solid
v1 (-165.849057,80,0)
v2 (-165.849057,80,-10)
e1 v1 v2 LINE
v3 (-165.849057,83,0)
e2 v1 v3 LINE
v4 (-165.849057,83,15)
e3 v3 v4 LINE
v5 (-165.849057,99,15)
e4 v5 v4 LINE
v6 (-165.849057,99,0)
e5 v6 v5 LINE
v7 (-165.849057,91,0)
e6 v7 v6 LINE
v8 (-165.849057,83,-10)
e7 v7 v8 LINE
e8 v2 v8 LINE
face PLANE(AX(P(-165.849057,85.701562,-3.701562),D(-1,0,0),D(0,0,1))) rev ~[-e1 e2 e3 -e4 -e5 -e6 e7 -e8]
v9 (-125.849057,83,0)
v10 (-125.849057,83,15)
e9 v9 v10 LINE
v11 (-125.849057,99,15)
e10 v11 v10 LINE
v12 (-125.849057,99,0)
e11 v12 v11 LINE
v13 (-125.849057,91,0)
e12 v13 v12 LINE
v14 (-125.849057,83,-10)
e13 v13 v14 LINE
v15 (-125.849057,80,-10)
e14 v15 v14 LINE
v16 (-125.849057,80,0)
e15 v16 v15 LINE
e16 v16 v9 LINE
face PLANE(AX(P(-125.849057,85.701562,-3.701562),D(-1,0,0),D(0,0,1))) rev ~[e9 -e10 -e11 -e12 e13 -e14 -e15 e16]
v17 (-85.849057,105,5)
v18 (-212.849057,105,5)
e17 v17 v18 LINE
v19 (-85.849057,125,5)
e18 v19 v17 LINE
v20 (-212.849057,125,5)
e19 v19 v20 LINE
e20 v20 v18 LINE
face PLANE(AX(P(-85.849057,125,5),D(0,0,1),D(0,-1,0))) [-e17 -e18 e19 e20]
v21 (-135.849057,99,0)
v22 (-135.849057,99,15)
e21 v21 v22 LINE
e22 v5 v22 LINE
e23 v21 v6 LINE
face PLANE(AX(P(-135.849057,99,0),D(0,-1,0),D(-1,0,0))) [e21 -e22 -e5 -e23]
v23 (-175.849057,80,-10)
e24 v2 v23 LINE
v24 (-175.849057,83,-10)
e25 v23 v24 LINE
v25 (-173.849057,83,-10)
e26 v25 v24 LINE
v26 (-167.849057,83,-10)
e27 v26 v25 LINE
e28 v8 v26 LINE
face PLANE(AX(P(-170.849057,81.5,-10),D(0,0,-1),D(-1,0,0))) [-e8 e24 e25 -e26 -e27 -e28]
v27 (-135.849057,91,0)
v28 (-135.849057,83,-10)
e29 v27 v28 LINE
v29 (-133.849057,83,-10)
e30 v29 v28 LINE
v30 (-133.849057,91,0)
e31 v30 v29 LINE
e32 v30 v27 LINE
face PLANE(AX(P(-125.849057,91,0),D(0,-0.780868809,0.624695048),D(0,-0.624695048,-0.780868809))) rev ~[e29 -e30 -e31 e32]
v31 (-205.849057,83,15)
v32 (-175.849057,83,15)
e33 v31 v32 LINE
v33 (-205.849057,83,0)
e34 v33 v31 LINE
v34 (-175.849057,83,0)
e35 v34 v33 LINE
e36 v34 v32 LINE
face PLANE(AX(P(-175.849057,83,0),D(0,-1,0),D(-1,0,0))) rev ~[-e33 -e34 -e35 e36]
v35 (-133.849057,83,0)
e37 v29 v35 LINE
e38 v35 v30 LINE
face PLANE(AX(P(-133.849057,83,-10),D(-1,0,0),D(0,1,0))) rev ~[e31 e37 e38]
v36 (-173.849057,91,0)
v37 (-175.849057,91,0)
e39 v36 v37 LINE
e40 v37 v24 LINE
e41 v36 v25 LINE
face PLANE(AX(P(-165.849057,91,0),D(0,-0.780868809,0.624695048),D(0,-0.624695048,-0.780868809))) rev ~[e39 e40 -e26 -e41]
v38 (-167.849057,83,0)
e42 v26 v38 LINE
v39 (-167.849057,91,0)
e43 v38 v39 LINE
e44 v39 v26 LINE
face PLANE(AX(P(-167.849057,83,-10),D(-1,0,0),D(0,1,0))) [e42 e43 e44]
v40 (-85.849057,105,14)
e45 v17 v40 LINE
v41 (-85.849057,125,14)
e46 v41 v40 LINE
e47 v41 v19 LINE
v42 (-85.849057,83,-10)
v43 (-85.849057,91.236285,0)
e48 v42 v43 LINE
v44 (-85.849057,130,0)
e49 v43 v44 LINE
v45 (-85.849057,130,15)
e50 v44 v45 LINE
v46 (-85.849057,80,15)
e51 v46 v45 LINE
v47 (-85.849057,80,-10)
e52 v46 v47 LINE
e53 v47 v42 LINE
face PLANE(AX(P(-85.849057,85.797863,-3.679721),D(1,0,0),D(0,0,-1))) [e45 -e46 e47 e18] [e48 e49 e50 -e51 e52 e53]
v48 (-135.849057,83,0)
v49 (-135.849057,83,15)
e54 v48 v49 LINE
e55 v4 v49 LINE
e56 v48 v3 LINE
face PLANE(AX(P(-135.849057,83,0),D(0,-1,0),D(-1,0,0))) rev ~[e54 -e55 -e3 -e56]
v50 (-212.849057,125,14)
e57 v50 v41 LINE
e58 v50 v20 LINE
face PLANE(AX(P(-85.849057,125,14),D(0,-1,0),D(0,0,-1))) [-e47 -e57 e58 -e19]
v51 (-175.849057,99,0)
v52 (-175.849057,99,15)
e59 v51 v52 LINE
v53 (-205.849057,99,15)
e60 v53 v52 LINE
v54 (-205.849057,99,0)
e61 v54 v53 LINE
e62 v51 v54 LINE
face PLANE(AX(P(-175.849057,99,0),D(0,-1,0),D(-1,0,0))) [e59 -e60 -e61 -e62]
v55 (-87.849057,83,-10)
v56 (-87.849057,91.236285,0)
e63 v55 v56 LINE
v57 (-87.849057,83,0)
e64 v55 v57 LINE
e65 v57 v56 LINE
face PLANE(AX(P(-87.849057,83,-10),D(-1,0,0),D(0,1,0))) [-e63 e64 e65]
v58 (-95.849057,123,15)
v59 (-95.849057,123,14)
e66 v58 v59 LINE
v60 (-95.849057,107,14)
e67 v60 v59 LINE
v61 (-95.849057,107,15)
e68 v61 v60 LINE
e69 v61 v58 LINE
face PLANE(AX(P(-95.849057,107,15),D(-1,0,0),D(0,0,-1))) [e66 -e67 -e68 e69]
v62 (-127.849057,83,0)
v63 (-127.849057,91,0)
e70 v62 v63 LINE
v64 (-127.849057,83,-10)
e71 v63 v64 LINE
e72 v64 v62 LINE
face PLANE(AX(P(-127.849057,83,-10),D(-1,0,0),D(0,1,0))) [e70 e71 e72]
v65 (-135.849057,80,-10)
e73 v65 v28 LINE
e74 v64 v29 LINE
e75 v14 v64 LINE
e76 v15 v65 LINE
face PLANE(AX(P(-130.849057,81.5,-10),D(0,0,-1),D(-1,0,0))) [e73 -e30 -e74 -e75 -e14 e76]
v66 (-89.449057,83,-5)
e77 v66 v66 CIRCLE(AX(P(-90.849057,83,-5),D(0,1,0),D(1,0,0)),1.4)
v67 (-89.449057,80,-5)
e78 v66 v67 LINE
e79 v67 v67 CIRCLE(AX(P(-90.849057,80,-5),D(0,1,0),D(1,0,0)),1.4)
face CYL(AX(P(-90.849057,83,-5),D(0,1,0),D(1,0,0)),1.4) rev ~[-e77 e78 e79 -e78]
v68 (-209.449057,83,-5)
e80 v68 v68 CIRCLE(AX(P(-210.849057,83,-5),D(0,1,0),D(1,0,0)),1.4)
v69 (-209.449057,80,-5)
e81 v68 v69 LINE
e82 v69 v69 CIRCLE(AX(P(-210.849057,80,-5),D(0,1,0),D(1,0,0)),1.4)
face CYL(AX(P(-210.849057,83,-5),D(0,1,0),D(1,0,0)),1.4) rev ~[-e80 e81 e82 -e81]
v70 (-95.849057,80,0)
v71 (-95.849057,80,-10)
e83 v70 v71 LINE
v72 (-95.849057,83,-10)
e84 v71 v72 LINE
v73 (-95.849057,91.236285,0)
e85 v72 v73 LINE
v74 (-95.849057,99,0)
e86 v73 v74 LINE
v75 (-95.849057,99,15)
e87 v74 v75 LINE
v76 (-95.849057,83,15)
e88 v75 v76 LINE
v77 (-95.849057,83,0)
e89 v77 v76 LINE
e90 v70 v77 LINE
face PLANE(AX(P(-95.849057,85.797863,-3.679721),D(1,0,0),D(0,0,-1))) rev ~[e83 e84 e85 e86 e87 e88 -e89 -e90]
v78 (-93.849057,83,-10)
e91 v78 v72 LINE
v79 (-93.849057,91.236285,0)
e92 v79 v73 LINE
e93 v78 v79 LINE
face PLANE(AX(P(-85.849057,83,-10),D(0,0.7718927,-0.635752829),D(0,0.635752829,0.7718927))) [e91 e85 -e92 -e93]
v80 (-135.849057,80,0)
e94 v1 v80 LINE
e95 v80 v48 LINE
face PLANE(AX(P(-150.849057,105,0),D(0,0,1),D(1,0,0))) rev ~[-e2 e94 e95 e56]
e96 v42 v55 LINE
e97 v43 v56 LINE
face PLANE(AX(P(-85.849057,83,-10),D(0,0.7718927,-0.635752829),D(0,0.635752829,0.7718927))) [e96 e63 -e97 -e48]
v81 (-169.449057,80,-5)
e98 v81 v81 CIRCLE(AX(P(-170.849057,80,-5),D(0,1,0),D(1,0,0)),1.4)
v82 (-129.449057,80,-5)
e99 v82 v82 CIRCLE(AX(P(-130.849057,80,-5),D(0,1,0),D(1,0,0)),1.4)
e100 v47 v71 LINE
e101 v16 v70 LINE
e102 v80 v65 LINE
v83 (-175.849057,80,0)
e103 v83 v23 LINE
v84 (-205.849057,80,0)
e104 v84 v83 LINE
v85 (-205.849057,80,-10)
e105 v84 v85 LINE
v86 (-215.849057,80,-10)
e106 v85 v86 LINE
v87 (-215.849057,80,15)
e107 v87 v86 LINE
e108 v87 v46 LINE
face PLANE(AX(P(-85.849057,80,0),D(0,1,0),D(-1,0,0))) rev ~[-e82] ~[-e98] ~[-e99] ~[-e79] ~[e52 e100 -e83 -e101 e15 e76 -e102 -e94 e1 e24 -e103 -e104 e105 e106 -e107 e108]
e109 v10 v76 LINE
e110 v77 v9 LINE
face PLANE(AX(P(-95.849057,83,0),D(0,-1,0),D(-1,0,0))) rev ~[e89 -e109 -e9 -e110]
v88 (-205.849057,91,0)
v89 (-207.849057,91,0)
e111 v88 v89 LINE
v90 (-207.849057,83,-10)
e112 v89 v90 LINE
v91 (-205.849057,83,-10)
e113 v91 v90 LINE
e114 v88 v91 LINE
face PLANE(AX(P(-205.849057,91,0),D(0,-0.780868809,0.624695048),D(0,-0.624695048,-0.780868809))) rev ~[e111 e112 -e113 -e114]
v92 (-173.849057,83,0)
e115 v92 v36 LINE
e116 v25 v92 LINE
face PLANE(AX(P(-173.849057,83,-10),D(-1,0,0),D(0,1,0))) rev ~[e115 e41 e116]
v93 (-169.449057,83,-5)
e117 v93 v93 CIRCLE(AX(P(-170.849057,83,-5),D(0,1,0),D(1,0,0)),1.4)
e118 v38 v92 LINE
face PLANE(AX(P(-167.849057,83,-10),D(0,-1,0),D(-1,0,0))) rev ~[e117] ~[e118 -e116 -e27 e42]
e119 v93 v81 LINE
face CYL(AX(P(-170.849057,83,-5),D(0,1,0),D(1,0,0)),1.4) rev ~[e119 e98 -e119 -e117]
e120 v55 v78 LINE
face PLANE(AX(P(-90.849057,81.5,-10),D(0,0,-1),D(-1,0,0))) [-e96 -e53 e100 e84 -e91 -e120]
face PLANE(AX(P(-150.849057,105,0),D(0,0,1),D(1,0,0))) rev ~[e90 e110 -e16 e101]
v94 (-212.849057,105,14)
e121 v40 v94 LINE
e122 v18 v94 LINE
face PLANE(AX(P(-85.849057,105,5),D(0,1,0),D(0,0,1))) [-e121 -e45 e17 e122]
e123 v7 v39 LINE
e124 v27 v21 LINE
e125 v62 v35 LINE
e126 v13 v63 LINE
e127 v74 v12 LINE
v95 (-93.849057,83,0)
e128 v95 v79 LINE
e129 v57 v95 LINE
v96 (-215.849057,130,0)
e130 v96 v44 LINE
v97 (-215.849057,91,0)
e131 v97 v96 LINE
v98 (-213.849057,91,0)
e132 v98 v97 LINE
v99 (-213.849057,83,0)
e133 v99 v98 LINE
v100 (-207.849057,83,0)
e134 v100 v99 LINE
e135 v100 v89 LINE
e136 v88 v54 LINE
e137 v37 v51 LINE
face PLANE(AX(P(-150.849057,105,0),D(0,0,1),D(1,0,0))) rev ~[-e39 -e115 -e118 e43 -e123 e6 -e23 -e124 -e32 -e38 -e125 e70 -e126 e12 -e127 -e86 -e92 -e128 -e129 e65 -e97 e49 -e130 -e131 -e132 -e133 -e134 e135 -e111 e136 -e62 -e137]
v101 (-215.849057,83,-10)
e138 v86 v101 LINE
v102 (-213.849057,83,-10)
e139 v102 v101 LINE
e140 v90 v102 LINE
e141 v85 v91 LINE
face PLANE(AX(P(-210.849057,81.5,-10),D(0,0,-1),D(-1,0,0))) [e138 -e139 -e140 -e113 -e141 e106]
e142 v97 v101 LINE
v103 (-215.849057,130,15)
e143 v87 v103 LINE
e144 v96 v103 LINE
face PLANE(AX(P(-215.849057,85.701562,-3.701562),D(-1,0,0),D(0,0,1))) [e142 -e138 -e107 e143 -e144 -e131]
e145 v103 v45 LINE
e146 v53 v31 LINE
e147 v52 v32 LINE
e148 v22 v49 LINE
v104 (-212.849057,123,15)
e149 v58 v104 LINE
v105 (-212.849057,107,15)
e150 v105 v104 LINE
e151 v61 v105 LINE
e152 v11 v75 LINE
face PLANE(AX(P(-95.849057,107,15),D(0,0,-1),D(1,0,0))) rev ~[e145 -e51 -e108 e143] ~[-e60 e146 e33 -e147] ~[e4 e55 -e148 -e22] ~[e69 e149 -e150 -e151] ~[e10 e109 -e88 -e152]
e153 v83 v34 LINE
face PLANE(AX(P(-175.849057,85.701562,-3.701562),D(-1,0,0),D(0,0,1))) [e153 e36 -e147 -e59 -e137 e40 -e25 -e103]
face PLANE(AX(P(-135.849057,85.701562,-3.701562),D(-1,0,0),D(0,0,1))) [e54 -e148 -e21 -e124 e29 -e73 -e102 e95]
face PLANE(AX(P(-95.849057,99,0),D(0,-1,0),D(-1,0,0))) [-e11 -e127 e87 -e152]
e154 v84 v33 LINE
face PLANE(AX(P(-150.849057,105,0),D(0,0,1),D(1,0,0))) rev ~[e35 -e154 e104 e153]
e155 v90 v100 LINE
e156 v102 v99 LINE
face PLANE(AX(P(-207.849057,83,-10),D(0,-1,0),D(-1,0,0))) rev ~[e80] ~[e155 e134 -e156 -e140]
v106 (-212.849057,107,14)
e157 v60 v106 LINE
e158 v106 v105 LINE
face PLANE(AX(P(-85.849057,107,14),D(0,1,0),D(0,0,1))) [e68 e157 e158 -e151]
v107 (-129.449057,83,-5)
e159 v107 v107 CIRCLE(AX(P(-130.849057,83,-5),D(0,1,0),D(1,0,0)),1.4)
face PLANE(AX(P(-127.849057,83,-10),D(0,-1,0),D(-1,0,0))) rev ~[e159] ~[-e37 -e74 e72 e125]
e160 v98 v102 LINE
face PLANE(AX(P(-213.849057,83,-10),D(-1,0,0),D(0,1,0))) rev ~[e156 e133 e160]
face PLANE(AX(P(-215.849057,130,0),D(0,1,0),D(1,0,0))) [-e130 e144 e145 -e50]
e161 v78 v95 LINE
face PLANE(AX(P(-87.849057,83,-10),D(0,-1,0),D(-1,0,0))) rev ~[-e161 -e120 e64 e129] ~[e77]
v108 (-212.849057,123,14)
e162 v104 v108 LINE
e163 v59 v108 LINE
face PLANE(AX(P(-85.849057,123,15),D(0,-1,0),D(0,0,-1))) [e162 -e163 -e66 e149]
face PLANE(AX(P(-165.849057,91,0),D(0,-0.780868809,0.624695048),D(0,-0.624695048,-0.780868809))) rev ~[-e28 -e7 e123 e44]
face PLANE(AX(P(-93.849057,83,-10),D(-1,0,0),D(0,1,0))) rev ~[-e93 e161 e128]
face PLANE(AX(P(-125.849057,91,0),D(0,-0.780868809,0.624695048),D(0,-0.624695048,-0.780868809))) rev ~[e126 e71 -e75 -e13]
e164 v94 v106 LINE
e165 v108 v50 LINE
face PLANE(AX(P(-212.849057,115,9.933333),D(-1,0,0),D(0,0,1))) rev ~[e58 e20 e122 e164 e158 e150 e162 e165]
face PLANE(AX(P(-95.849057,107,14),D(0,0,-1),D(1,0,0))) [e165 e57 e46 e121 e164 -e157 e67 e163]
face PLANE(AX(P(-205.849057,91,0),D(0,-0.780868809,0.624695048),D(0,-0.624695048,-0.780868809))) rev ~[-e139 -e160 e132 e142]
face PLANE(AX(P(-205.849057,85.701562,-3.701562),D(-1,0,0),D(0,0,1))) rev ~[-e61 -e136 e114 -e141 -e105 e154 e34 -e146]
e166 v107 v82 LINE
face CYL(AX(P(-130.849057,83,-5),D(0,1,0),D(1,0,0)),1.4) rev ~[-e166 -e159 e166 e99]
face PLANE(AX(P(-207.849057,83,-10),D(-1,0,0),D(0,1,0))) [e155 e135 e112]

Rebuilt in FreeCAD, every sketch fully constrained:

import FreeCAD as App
import Part
import Sketcher

V = App.Vector


def add_polygon(sketch, points):
    """Adds a closed chain of lines whose ends are joined by coincident constraints."""
    first, n = sketch.GeometryCount, len(points)
    for a, b in zip(points, points[1:] + points[:1]):
        sketch.addGeometry(Part.LineSegment(App.Vector(*a, 0), App.Vector(*b, 0)), False)
    for i in range(n):
        sketch.addConstraint(Sketcher.Constraint("Coincident", first + i, 2, first + (i + 1) % n, 1))

doc = App.newDocument("Part")
body = doc.addObject("PartDesign::Body", "Body")

sketch1 = body.newObject("Sketcher::SketchObject", "Sketch")
sketch1.AttachmentSupport = (doc.getObject("XY_Plane"), [""])
sketch1.MapMode = "FlatFace"
add_polygon(sketch1, [(-215.849057, 130), (-215.849057, 80), (-85.849057, 80), (-85.849057, 130)])
sketch1.addConstraint([
    Sketcher.Constraint("Vertical", 0),
    Sketcher.Constraint("Horizontal", 1),
    Sketcher.Constraint("Vertical", 2),
    Sketcher.Constraint("Horizontal", 3),
    Sketcher.Constraint("DistanceX", 1, 1, 1, 2, 130.0),
    Sketcher.Constraint("DistanceY", 0, 2, 0, 1, 50.0),
    Sketcher.Constraint("DistanceY", -1, 1, 0, 2, 80.0),
    Sketcher.Constraint("DistanceX", 0, 2, -1, 1, 215.849057),
])
pad1 = body.newObject("PartDesign::Pad", "Pad")
pad1.Profile = sketch1
pad1.Length = 15

sketch2 = body.newObject("Sketcher::SketchObject", "Sketch001")
sketch2.AttachmentSupport = (doc.getObject("YZ_Plane"), [""])
sketch2.MapMode = "FlatFace"
sketch2.AttachmentOffset = App.Placement(V(0, 0, -85.849057), App.Rotation())
add_polygon(sketch2, [(125, 5), (125, 14), (123, 14), (123, 15), (107, 15), (107, 14), (105, 14), (105, 5)])
sketch2.addConstraint([
    Sketcher.Constraint("Vertical", 0),
    Sketcher.Constraint("Horizontal", 1),
    Sketcher.Constraint("Vertical", 2),
    Sketcher.Constraint("Horizontal", 3),
    Sketcher.Constraint("Vertical", 4),
    Sketcher.Constraint("Horizontal", 5),
    Sketcher.Constraint("Vertical", 6),
    Sketcher.Constraint("Horizontal", 7),
    Sketcher.Constraint("Horizontal", 1, 2, 4, 2),
    Sketcher.Constraint("Equal", 1, 5),
    Sketcher.Constraint("DistanceX", 1, 2, 1, 1, 2.0),
    Sketcher.Constraint("DistanceX", 3, 2, 3, 1, 16.0),
    Sketcher.Constraint("DistanceY", 0, 1, 0, 2, 9.0),
    Sketcher.Constraint("DistanceY", 2, 1, 2, 2, 1.0),
    Sketcher.Constraint("DistanceX", -1, 1, 0, 2, 125.0),
    Sketcher.Constraint("DistanceY", -1, 1, 0, 2, 14.0),
])
pocket1 = body.newObject("PartDesign::Pocket", "Pocket")
pocket1.Profile = sketch2
pocket1.Type = "TwoLengths"
pocket1.Length = 1
pocket1.Length2 = 127
pocket1.Reversed = True

sketch3 = body.newObject("Sketcher::SketchObject", "Sketch002")
sketch3.AttachmentSupport = (doc.getObject("XY_Plane"), [""])
sketch3.MapMode = "FlatFace"
add_polygon(sketch3, [(-100.849057, 83), (-100.849057, 80), (-110.849057, 80), (-110.849057, 83)])
add_polygon(sketch3, [(-190.849057, 83), (-190.849057, 80), (-200.849057, 80), (-200.849057, 83)])
sketch3.addConstraint([
    Sketcher.Constraint("Vertical", 0),
    Sketcher.Constraint("Horizontal", 1),
    Sketcher.Constraint("Vertical", 2),
    Sketcher.Constraint("Horizontal", 3),
    Sketcher.Constraint("Vertical", 4),
    Sketcher.Constraint("Horizontal", 5),
    Sketcher.Constraint("Vertical", 6),
    Sketcher.Constraint("Horizontal", 7),
    Sketcher.Constraint("Horizontal", 1, 2, 4, 2),
    Sketcher.Constraint("Horizontal", 3, 2, 6, 2),
    Sketcher.Constraint("Equal", 3, 5),
    Sketcher.Constraint("DistanceX", 1, 2, 1, 1, 10.0),
    Sketcher.Constraint("DistanceY", 0, 2, 0, 1, 3.0),
    Sketcher.Constraint("DistanceY", -1, 1, 0, 2, 80.0),
    Sketcher.Constraint("DistanceX", 4, 2, 1, 2, 80.0),
    Sketcher.Constraint("DistanceX", 0, 2, -1, 1, 100.849057),
])
pad2 = body.newObject("PartDesign::Pad", "Pad001")
pad2.Profile = sketch3
pad2.Length = 10
pad2.Reversed = True

sketch4 = body.newObject("Sketcher::SketchObject", "Sketch003")
sketch4.AttachmentSupport = (doc.getObject("XY_Plane"), [""])
sketch4.MapMode = "FlatFace"
add_polygon(sketch4, [(-175.849057, 99), (-175.849057, 83), (-205.849057, 83), (-205.849057, 99)])
add_polygon(sketch4, [(-135.849057, 99), (-135.849057, 83), (-165.849057, 83), (-165.849057, 99)])
add_polygon(sketch4, [(-95.849057, 99), (-95.849057, 83), (-125.849057, 83), (-125.849057, 99)])
sketch4.addConstraint([
    Sketcher.Constraint("Vertical", 0),
    Sketcher.Constraint("Horizontal", 1),
    Sketcher.Constraint("Vertical", 2),
    Sketcher.Constraint("Horizontal", 3),
    Sketcher.Constraint("Vertical", 4),
    Sketcher.Constraint("Horizontal", 5),
    Sketcher.Constraint("Vertical", 6),
    Sketcher.Constraint("Horizontal", 7),
    Sketcher.Constraint("Vertical", 8),
    Sketcher.Constraint("Horizontal", 9),
    Sketcher.Constraint("Vertical", 10),
    Sketcher.Constraint("Horizontal", 11),
    Sketcher.Constraint("Horizontal", 1, 2, 4, 2),
    Sketcher.Constraint("Horizontal", 3, 2, 6, 2),
    Sketcher.Constraint("Horizontal", 5, 2, 8, 2),
    Sketcher.Constraint("Horizontal", 7, 2, 10, 2),
    Sketcher.Constraint("Equal", 3, 5),
    Sketcher.Constraint("Equal", 7, 9),
    Sketcher.Constraint("DistanceX", 1, 2, 1, 1, 30.0),
    Sketcher.Constraint("DistanceY", 0, 2, 0, 1, 16.0),
    Sketcher.Constraint("DistanceY", -1, 1, 0, 2, 83.0),
    Sketcher.Constraint("DistanceX", 0, 2, 4, 2, 40.0),
    Sketcher.Constraint("DistanceX", 4, 2, 8, 2, 40.0),
    Sketcher.Constraint("DistanceX", 0, 2, -1, 1, 175.849057),
])
pocket2 = body.newObject("PartDesign::Pocket", "Pocket001")
pocket2.Profile = sketch4
pocket2.Type = "ThroughAll"
pocket2.Reversed = True

sketch5 = body.newObject("Sketcher::SketchObject", "Sketch004")
sketch5.AttachmentSupport = (doc.getObject("XZ_Plane"), [""])
sketch5.MapMode = "FlatFace"
sketch5.AttachmentOffset = App.Placement(V(0, 0, -83), App.Rotation())
sketch5.addGeometry(Part.Circle(V(-105.849057, -5, 0), V(0, 0, 1), 1.375), False)
sketch5.addConstraint([
    Sketcher.Constraint("Diameter", 0, 2.75),
    Sketcher.Constraint("DistanceY", 0, 3, -1, 1, 5.0),
    Sketcher.Constraint("DistanceX", 0, 3, -1, 1, 105.849057),
])
pocket3 = body.newObject("PartDesign::Pocket", "Pocket002")
pocket3.Profile = sketch5
pocket3.Type = "ThroughAll"
pocket3.Reversed = True
doc.recompute()

datumplane = body.newObject("PartDesign::Plane", "DatumPlane")
datumplane.AttachmentSupport = (doc.getObject("YZ_Plane"), [""])
datumplane.MapMode = "FlatFace"
datumplane.AttachmentOffset = App.Placement(V(0, 0, -151), App.Rotation())
mirrored = body.newObject("PartDesign::Mirrored", "Mirrored")
mirrored.Originals = [pocket3]
mirrored.MirrorPlane = (datumplane, [""])
body.Tip = mirrored

sketch6 = body.newObject("Sketcher::SketchObject", "Sketch005")
sketch6.AttachmentSupport = (doc.getObject("XY_Plane"), [""])
sketch6.MapMode = "FlatFace"
add_polygon(sketch6, [(-145.849057, 83), (-145.849057, 80), (-155.849057, 80), (-155.849057, 83)])
sketch6.addConstraint([
    Sketcher.Constraint("Vertical", 0),
    Sketcher.Constraint("Horizontal", 1),
    Sketcher.Constraint("Vertical", 2),
    Sketcher.Constraint("Horizontal", 3),
    Sketcher.Constraint("DistanceX", 1, 2, 1, 1, 10.0),
    Sketcher.Constraint("DistanceY", 0, 2, 0, 1, 3.0),
    Sketcher.Constraint("DistanceY", -1, 1, 0, 2, 80.0),
    Sketcher.Constraint("DistanceX", 0, 2, -1, 1, 145.849057),
])
pad3 = body.newObject("PartDesign::Pad", "Pad002")
pad3.Profile = sketch6
pad3.Length = 10
pad3.Reversed = True

sketch7 = body.newObject("Sketcher::SketchObject", "Sketch006")
sketch7.AttachmentSupport = (doc.getObject("XZ_Plane"), [""])
sketch7.MapMode = "FlatFace"
sketch7.AttachmentOffset = App.Placement(V(0, 0, -83), App.Rotation())
sketch7.addGeometry(Part.Circle(V(-150.849057, -5, 0), V(0, 0, 1), 1.375), False)
sketch7.addConstraint([
    Sketcher.Constraint("Diameter", 0, 2.75),
    Sketcher.Constraint("DistanceY", 0, 3, -1, 1, 5.0),
    Sketcher.Constraint("DistanceX", 0, 3, -1, 1, 150.849057),
])
pocket4 = body.newObject("PartDesign::Pocket", "Pocket003")
pocket4.Profile = sketch7
pocket4.Length = 10
pocket4.Reversed = True

sketch8 = body.newObject("Sketcher::SketchObject", "Sketch007")
sketch8.AttachmentSupport = (doc.getObject("XZ_Plane"), [""])
sketch8.MapMode = "FlatFace"
sketch8.AttachmentOffset = App.Placement(V(0, 0, -107), App.Rotation())
add_polygon(sketch8, [(-95.849057, 14), (-95.849057, 15), (-85.849057, 15), (-85.849057, 14)])
sketch8.addConstraint([
    Sketcher.Constraint("Vertical", 0),
    Sketcher.Constraint("Horizontal", 1),
    Sketcher.Constraint("Vertical", 2),
    Sketcher.Constraint("Horizontal", 3),
    Sketcher.Constraint("DistanceX", 1, 1, 1, 2, 10.0),
    Sketcher.Constraint("DistanceY", 0, 1, 0, 2, 1.0),
    Sketcher.Constraint("DistanceY", -1, 1, 0, 2, 15.0),
    Sketcher.Constraint("DistanceX", 0, 2, -1, 1, 95.849057),
])
pad4 = body.newObject("PartDesign::Pad", "Pad003")
pad4.Profile = sketch8
pad4.Length = 20
pad4.Reversed = True

sketch9 = body.newObject("Sketcher::SketchObject", "Sketch008")
sketch9.AttachmentSupport = (doc.getObject("XY_Plane"), [""])
sketch9.MapMode = "FlatFace"
sketch9.AttachmentOffset = App.Placement(V(0, 0, -10), App.Rotation())
add_polygon(sketch9, [(-100.849057, 83), (-100.849057, 80), (-110.849057, 80), (-110.849057, 83)])
sketch9.addConstraint([
    Sketcher.Constraint("Vertical", 0),
    Sketcher.Constraint("Horizontal", 1),
    Sketcher.Constraint("Vertical", 2),
    Sketcher.Constraint("Horizontal", 3),
    Sketcher.Constraint("DistanceX", 1, 2, 1, 1, 10.0),
    Sketcher.Constraint("DistanceY", 0, 2, 0, 1, 3.0),
    Sketcher.Constraint("DistanceY", -1, 1, 0, 2, 80.0),
    Sketcher.Constraint("DistanceX", 0, 2, -1, 1, 100.849057),
])
pocket5 = body.newObject("PartDesign::Pocket", "Pocket004")
pocket5.Profile = sketch9
pocket5.Length = 10
pocket5.Reversed = True

sketch10 = body.newObject("Sketcher::SketchObject", "Sketch009")
sketch10.AttachmentSupport = (doc.getObject("XY_Plane"), [""])
sketch10.MapMode = "FlatFace"
sketch10.AttachmentOffset = App.Placement(V(0, 0, -10), App.Rotation())
add_polygon(sketch10, [(-145.849057, 83), (-145.849057, 80), (-155.849057, 80), (-155.849057, 83)])
sketch10.addConstraint([
    Sketcher.Constraint("Vertical", 0),
    Sketcher.Constraint("Horizontal", 1),
    Sketcher.Constraint("Vertical", 2),
    Sketcher.Constraint("Horizontal", 3),
    Sketcher.Constraint("DistanceX", 1, 2, 1, 1, 10.0),
    Sketcher.Constraint("DistanceY", 0, 2, 0, 1, 3.0),
    Sketcher.Constraint("DistanceY", -1, 1, 0, 2, 80.0),
    Sketcher.Constraint("DistanceX", 0, 2, -1, 1, 145.849057),
])
pocket6 = body.newObject("PartDesign::Pocket", "Pocket005")
pocket6.Profile = sketch10
pocket6.Length = 10
pocket6.Reversed = True

sketch11 = body.newObject("Sketcher::SketchObject", "Sketch010")
sketch11.AttachmentSupport = (doc.getObject("XY_Plane"), [""])
sketch11.MapMode = "FlatFace"
sketch11.AttachmentOffset = App.Placement(V(0, 0, -10), App.Rotation())
add_polygon(sketch11, [(-190.849057, 83), (-190.849057, 80), (-200.849057, 80), (-200.849057, 83)])
sketch11.addConstraint([
    Sketcher.Constraint("Vertical", 0),
    Sketcher.Constraint("Horizontal", 1),
    Sketcher.Constraint("Vertical", 2),
    Sketcher.Constraint("Horizontal", 3),
    Sketcher.Constraint("DistanceX", 1, 2, 1, 1, 10.0),
    Sketcher.Constraint("DistanceY", 0, 2, 0, 1, 3.0),
    Sketcher.Constraint("DistanceY", -1, 1, 0, 2, 80.0),
    Sketcher.Constraint("DistanceX", 0, 2, -1, 1, 190.849057),
])
pocket7 = body.newObject("PartDesign::Pocket", "Pocket006")
pocket7.Profile = sketch11
pocket7.Length = 10
pocket7.Reversed = True

sketch12 = body.newObject("Sketcher::SketchObject", "Sketch011")
sketch12.AttachmentSupport = (doc.getObject("XY_Plane"), [""])
sketch12.MapMode = "FlatFace"
add_polygon(sketch12, [(-85.849057, 83), (-85.849057, 80), (-95.849057, 80), (-95.849057, 83)])
add_polygon(sketch12, [(-125.849057, 83), (-125.849057, 80), (-135.849057, 80), (-135.849057, 83)])
add_polygon(sketch12, [(-165.849057, 83), (-165.849057, 80), (-175.849057, 80), (-175.849057, 83)])
add_polygon(sketch12, [(-205.849057, 83), (-205.849057, 80), (-215.849057, 80), (-215.849057, 83)])
sketch12.addConstraint([
    Sketcher.Constraint("Vertical", 0),
    Sketcher.Constraint("Horizontal", 1),
    Sketcher.Constraint("Vertical", 2),
    Sketcher.Constraint("Horizontal", 3),
    Sketcher.Constraint("Vertical", 4),
    Sketcher.Constraint("Horizontal", 5),
    Sketcher.Constraint("Vertical", 6),
    Sketcher.Constraint("Horizontal", 7),
    Sketcher.Constraint("Vertical", 8),
    Sketcher.Constraint("Horizontal", 9),
    Sketcher.Constraint("Vertical", 10),
    Sketcher.Constraint("Horizontal", 11),
    Sketcher.Constraint("Vertical", 12),
    Sketcher.Constraint("Horizontal", 13),
    Sketcher.Constraint("Vertical", 14),
    Sketcher.Constraint("Horizontal", 15),
    Sketcher.Constraint("Horizontal", 1, 2, 4, 2),
    Sketcher.Constraint("Horizontal", 3, 2, 6, 2),
    Sketcher.Constraint("Horizontal", 5, 2, 8, 2),
    Sketcher.Constraint("Horizontal", 7, 2, 10, 2),
    Sketcher.Constraint("Horizontal", 9, 2, 12, 2),
    Sketcher.Constraint("Horizontal", 11, 2, 14, 2),
    Sketcher.Constraint("Equal", 3, 5),
    Sketcher.Constraint("Equal", 7, 9),
    Sketcher.Constraint("Equal", 11, 13),
    Sketcher.Constraint("DistanceX", 1, 2, 1, 1, 10.0),
    Sketcher.Constraint("DistanceY", 0, 2, 0, 1, 3.0),
    Sketcher.Constraint("DistanceY", -1, 1, 0, 2, 80.0),
    Sketcher.Constraint("DistanceX", 4, 2, 1, 2, 30.0),
    Sketcher.Constraint("DistanceX", 8, 2, 5, 2, 30.0),
    Sketcher.Constraint("DistanceX", 12, 2, 9, 2, 30.0),
    Sketcher.Constraint("DistanceX", 0, 2, -1, 1, 85.849057),
])
pad5 = body.newObject("PartDesign::Pad", "Pad004")
pad5.Profile = sketch12
pad5.Length = 10
pad5.Reversed = True

sketch13 = body.newObject("Sketcher::SketchObject", "Sketch012")
sketch13.AttachmentSupport = (doc.getObject("YZ_Plane"), [""])
sketch13.MapMode = "FlatFace"
sketch13.AttachmentOffset = App.Placement(V(0, 0, -85.849057), App.Rotation())
add_polygon(sketch13, [(83, -10), (91.236285, 0), (83, 0)])
sketch13.addConstraint([
    Sketcher.Constraint("Horizontal", 1),
    Sketcher.Constraint("Vertical", 2),
    Sketcher.Constraint("PointOnObject", 0, 2, -1),
    Sketcher.Constraint("DistanceY", 2, 2, 2, 1, 10.0),
    Sketcher.Constraint("DistanceX", -1, 1, 1, 2, 83.0),
    Sketcher.Constraint("Distance", 0, 12.955169),
])
pad6 = body.newObject("PartDesign::Pad", "Pad005")
pad6.Profile = sketch13
pad6.Length = 10
pad6.Reversed = True

sketch14 = body.newObject("Sketcher::SketchObject", "Sketch013")
sketch14.AttachmentSupport = (doc.getObject("YZ_Plane"), [""])
sketch14.MapMode = "FlatFace"
sketch14.AttachmentOffset = App.Placement(V(0, 0, -125.849057), App.Rotation())
add_polygon(sketch14, [(91, 0), (83, 0), (83, -10)])
sketch14.addConstraint([
    Sketcher.Constraint("Horizontal", 0),
    Sketcher.Constraint("Vertical", 1),
    Sketcher.Constraint("PointOnObject", 0, 2, -1),
    Sketcher.Constraint("DistanceX", 0, 2, 0, 1, 8.0),
    Sketcher.Constraint("DistanceY", 1, 2, 1, 1, 10.0),
    Sketcher.Constraint("DistanceX", -1, 1, 0, 2, 83.0),
])
pad7 = body.newObject("PartDesign::Pad", "Pad006")
pad7.Profile = sketch14
pad7.Length = 10
pad7.Reversed = True

sketch15 = body.newObject("Sketcher::SketchObject", "Sketch014")
sketch15.AttachmentSupport = (doc.getObject("YZ_Plane"), [""])
sketch15.MapMode = "FlatFace"
sketch15.AttachmentOffset = App.Placement(V(0, 0, -165.849057), App.Rotation())
add_polygon(sketch15, [(91, 0), (83, 0), (83, -10)])
sketch15.addConstraint([
    Sketcher.Constraint("Horizontal", 0),
    Sketcher.Constraint("Vertical", 1),
    Sketcher.Constraint("PointOnObject", 0, 2, -1),
    Sketcher.Constraint("DistanceX", 0, 2, 0, 1, 8.0),
    Sketcher.Constraint("DistanceY", 1, 2, 1, 1, 10.0),
    Sketcher.Constraint("DistanceX", -1, 1, 0, 2, 83.0),
])
pad8 = body.newObject("PartDesign::Pad", "Pad007")
pad8.Profile = sketch15
pad8.Length = 10
pad8.Reversed = True

sketch16 = body.newObject("Sketcher::SketchObject", "Sketch015")
sketch16.AttachmentSupport = (doc.getObject("YZ_Plane"), [""])
sketch16.MapMode = "FlatFace"
sketch16.AttachmentOffset = App.Placement(V(0, 0, -205.849057), App.Rotation())
add_polygon(sketch16, [(91, 0), (83, 0), (83, -10)])
sketch16.addConstraint([
    Sketcher.Constraint("Horizontal", 0),
    Sketcher.Constraint("Vertical", 1),
    Sketcher.Constraint("PointOnObject", 0, 2, -1),
    Sketcher.Constraint("DistanceX", 0, 2, 0, 1, 8.0),
    Sketcher.Constraint("DistanceY", 1, 2, 1, 1, 10.0),
    Sketcher.Constraint("DistanceX", -1, 1, 0, 2, 83.0),
])
pad9 = body.newObject("PartDesign::Pad", "Pad008")
pad9.Profile = sketch16
pad9.Length = 10
pad9.Reversed = True

sketch17 = body.newObject("Sketcher::SketchObject", "Sketch016")
sketch17.AttachmentSupport = (doc.getObject("XY_Plane"), [""])
sketch17.MapMode = "FlatFace"
sketch17.AttachmentOffset = App.Placement(V(0, 0, -10), App.Rotation())
add_polygon(sketch17, [(-87.849057, 93), (-87.849057, 83), (-93.849057, 83), (-93.849057, 93)])
sketch17.addConstraint([
    Sketcher.Constraint("Vertical", 0),
    Sketcher.Constraint("Horizontal", 1),
    Sketcher.Constraint("Vertical", 2),
    Sketcher.Constraint("Horizontal", 3),
    Sketcher.Constraint("DistanceX", 1, 2, 1, 1, 6.0),
    Sketcher.Constraint("DistanceY", 0, 2, 0, 1, 10.0),
    Sketcher.Constraint("DistanceY", -1, 1, 0, 2, 83.0),
    Sketcher.Constraint("DistanceX", 0, 2, -1, 1, 87.849057),
])
pocket8 = body.newObject("PartDesign::Pocket", "Pocket007")
pocket8.Profile = sketch17
pocket8.Length = 10
pocket8.Reversed = True

sketch18 = body.newObject("Sketcher::SketchObject", "Sketch017")
sketch18.AttachmentSupport = (doc.getObject("XY_Plane"), [""])
sketch18.MapMode = "FlatFace"
sketch18.AttachmentOffset = App.Placement(V(0, 0, -10), App.Rotation())
add_polygon(sketch18, [(-127.849057, 93), (-127.849057, 83), (-133.849057, 83), (-133.849057, 93)])
sketch18.addConstraint([
    Sketcher.Constraint("Vertical", 0),
    Sketcher.Constraint("Horizontal", 1),
    Sketcher.Constraint("Vertical", 2),
    Sketcher.Constraint("Horizontal", 3),
    Sketcher.Constraint("DistanceX", 1, 2, 1, 1, 6.0),
    Sketcher.Constraint("DistanceY", 0, 2, 0, 1, 10.0),
    Sketcher.Constraint("DistanceY", -1, 1, 0, 2, 83.0),
    Sketcher.Constraint("DistanceX", 0, 2, -1, 1, 127.849057),
])
pocket9 = body.newObject("PartDesign::Pocket", "Pocket008")
pocket9.Profile = sketch18
pocket9.Length = 10
pocket9.Reversed = True

sketch19 = body.newObject("Sketcher::SketchObject", "Sketch018")
sketch19.AttachmentSupport = (doc.getObject("XY_Plane"), [""])
sketch19.MapMode = "FlatFace"
sketch19.AttachmentOffset = App.Placement(V(0, 0, -10), App.Rotation())
add_polygon(sketch19, [(-167.849057, 93), (-167.849057, 83), (-173.849057, 83), (-173.849057, 93)])
sketch19.addConstraint([
    Sketcher.Constraint("Vertical", 0),
    Sketcher.Constraint("Horizontal", 1),
    Sketcher.Constraint("Vertical", 2),
    Sketcher.Constraint("Horizontal", 3),
    Sketcher.Constraint("DistanceX", 1, 2, 1, 1, 6.0),
    Sketcher.Constraint("DistanceY", 0, 2, 0, 1, 10.0),
    Sketcher.Constraint("DistanceY", -1, 1, 0, 2, 83.0),
    Sketcher.Constraint("DistanceX", 0, 2, -1, 1, 167.849057),
])
pocket10 = body.newObject("PartDesign::Pocket", "Pocket009")
pocket10.Profile = sketch19
pocket10.Length = 10
pocket10.Reversed = True

sketch20 = body.newObject("Sketcher::SketchObject", "Sketch019")
sketch20.AttachmentSupport = (doc.getObject("XY_Plane"), [""])
sketch20.MapMode = "FlatFace"
sketch20.AttachmentOffset = App.Placement(V(0, 0, -10), App.Rotation())
add_polygon(sketch20, [(-207.849057, 93), (-207.849057, 83), (-213.849057, 83), (-213.849057, 93)])
sketch20.addConstraint([
    Sketcher.Constraint("Vertical", 0),
    Sketcher.Constraint("Horizontal", 1),
    Sketcher.Constraint("Vertical", 2),
    Sketcher.Constraint("Horizontal", 3),
    Sketcher.Constraint("DistanceX", 1, 2, 1, 1, 6.0),
    Sketcher.Constraint("DistanceY", 0, 2, 0, 1, 10.0),
    Sketcher.Constraint("DistanceY", -1, 1, 0, 2, 83.0),
    Sketcher.Constraint("DistanceX", 0, 2, -1, 1, 207.849057),
])
pocket11 = body.newObject("PartDesign::Pocket", "Pocket010")
pocket11.Profile = sketch20
pocket11.Length = 10
pocket11.Reversed = True

sketch21 = body.newObject("Sketcher::SketchObject", "Sketch020")
sketch21.AttachmentSupport = (doc.getObject("XZ_Plane"), [""])
sketch21.MapMode = "FlatFace"
sketch21.AttachmentOffset = App.Placement(V(0, 0, -83), App.Rotation())
sketch21.addGeometry([
    Part.Circle(V(-210.849057, -5, 0), V(0, 0, 1), 1.4),
    Part.Circle(V(-170.849057, -5, 0), V(0, 0, 1), 1.4),
    Part.Circle(V(-130.849057, -5, 0), V(0, 0, 1), 1.4),
    Part.Circle(V(-90.849057, -5, 0), V(0, 0, 1), 1.4),
], False)
sketch21.addConstraint([
    Sketcher.Constraint("Equal", 0, 1),
    Sketcher.Constraint("Equal", 1, 2),
    Sketcher.Constraint("Equal", 2, 3),
    Sketcher.Constraint("Horizontal", 0, 3, 1, 3),
    Sketcher.Constraint("Horizontal", 1, 3, 2, 3),
    Sketcher.Constraint("Horizontal", 2, 3, 3, 3),
    Sketcher.Constraint("Diameter", 0, 2.8),
    Sketcher.Constraint("DistanceY", 0, 3, -1, 1, 5.0),
    Sketcher.Constraint("DistanceX", 0, 3, 1, 3, 40.0),
    Sketcher.Constraint("DistanceX", 1, 3, 2, 3, 40.0),
    Sketcher.Constraint("DistanceX", 2, 3, 3, 3, 40.0),
    Sketcher.Constraint("DistanceX", 0, 3, -1, 1, 210.849057),
])
pocket12 = body.newObject("PartDesign::Pocket", "Pocket011")
pocket12.Profile = sketch21
pocket12.Length = 5
pocket12.Reversed = True

doc.recompute()
